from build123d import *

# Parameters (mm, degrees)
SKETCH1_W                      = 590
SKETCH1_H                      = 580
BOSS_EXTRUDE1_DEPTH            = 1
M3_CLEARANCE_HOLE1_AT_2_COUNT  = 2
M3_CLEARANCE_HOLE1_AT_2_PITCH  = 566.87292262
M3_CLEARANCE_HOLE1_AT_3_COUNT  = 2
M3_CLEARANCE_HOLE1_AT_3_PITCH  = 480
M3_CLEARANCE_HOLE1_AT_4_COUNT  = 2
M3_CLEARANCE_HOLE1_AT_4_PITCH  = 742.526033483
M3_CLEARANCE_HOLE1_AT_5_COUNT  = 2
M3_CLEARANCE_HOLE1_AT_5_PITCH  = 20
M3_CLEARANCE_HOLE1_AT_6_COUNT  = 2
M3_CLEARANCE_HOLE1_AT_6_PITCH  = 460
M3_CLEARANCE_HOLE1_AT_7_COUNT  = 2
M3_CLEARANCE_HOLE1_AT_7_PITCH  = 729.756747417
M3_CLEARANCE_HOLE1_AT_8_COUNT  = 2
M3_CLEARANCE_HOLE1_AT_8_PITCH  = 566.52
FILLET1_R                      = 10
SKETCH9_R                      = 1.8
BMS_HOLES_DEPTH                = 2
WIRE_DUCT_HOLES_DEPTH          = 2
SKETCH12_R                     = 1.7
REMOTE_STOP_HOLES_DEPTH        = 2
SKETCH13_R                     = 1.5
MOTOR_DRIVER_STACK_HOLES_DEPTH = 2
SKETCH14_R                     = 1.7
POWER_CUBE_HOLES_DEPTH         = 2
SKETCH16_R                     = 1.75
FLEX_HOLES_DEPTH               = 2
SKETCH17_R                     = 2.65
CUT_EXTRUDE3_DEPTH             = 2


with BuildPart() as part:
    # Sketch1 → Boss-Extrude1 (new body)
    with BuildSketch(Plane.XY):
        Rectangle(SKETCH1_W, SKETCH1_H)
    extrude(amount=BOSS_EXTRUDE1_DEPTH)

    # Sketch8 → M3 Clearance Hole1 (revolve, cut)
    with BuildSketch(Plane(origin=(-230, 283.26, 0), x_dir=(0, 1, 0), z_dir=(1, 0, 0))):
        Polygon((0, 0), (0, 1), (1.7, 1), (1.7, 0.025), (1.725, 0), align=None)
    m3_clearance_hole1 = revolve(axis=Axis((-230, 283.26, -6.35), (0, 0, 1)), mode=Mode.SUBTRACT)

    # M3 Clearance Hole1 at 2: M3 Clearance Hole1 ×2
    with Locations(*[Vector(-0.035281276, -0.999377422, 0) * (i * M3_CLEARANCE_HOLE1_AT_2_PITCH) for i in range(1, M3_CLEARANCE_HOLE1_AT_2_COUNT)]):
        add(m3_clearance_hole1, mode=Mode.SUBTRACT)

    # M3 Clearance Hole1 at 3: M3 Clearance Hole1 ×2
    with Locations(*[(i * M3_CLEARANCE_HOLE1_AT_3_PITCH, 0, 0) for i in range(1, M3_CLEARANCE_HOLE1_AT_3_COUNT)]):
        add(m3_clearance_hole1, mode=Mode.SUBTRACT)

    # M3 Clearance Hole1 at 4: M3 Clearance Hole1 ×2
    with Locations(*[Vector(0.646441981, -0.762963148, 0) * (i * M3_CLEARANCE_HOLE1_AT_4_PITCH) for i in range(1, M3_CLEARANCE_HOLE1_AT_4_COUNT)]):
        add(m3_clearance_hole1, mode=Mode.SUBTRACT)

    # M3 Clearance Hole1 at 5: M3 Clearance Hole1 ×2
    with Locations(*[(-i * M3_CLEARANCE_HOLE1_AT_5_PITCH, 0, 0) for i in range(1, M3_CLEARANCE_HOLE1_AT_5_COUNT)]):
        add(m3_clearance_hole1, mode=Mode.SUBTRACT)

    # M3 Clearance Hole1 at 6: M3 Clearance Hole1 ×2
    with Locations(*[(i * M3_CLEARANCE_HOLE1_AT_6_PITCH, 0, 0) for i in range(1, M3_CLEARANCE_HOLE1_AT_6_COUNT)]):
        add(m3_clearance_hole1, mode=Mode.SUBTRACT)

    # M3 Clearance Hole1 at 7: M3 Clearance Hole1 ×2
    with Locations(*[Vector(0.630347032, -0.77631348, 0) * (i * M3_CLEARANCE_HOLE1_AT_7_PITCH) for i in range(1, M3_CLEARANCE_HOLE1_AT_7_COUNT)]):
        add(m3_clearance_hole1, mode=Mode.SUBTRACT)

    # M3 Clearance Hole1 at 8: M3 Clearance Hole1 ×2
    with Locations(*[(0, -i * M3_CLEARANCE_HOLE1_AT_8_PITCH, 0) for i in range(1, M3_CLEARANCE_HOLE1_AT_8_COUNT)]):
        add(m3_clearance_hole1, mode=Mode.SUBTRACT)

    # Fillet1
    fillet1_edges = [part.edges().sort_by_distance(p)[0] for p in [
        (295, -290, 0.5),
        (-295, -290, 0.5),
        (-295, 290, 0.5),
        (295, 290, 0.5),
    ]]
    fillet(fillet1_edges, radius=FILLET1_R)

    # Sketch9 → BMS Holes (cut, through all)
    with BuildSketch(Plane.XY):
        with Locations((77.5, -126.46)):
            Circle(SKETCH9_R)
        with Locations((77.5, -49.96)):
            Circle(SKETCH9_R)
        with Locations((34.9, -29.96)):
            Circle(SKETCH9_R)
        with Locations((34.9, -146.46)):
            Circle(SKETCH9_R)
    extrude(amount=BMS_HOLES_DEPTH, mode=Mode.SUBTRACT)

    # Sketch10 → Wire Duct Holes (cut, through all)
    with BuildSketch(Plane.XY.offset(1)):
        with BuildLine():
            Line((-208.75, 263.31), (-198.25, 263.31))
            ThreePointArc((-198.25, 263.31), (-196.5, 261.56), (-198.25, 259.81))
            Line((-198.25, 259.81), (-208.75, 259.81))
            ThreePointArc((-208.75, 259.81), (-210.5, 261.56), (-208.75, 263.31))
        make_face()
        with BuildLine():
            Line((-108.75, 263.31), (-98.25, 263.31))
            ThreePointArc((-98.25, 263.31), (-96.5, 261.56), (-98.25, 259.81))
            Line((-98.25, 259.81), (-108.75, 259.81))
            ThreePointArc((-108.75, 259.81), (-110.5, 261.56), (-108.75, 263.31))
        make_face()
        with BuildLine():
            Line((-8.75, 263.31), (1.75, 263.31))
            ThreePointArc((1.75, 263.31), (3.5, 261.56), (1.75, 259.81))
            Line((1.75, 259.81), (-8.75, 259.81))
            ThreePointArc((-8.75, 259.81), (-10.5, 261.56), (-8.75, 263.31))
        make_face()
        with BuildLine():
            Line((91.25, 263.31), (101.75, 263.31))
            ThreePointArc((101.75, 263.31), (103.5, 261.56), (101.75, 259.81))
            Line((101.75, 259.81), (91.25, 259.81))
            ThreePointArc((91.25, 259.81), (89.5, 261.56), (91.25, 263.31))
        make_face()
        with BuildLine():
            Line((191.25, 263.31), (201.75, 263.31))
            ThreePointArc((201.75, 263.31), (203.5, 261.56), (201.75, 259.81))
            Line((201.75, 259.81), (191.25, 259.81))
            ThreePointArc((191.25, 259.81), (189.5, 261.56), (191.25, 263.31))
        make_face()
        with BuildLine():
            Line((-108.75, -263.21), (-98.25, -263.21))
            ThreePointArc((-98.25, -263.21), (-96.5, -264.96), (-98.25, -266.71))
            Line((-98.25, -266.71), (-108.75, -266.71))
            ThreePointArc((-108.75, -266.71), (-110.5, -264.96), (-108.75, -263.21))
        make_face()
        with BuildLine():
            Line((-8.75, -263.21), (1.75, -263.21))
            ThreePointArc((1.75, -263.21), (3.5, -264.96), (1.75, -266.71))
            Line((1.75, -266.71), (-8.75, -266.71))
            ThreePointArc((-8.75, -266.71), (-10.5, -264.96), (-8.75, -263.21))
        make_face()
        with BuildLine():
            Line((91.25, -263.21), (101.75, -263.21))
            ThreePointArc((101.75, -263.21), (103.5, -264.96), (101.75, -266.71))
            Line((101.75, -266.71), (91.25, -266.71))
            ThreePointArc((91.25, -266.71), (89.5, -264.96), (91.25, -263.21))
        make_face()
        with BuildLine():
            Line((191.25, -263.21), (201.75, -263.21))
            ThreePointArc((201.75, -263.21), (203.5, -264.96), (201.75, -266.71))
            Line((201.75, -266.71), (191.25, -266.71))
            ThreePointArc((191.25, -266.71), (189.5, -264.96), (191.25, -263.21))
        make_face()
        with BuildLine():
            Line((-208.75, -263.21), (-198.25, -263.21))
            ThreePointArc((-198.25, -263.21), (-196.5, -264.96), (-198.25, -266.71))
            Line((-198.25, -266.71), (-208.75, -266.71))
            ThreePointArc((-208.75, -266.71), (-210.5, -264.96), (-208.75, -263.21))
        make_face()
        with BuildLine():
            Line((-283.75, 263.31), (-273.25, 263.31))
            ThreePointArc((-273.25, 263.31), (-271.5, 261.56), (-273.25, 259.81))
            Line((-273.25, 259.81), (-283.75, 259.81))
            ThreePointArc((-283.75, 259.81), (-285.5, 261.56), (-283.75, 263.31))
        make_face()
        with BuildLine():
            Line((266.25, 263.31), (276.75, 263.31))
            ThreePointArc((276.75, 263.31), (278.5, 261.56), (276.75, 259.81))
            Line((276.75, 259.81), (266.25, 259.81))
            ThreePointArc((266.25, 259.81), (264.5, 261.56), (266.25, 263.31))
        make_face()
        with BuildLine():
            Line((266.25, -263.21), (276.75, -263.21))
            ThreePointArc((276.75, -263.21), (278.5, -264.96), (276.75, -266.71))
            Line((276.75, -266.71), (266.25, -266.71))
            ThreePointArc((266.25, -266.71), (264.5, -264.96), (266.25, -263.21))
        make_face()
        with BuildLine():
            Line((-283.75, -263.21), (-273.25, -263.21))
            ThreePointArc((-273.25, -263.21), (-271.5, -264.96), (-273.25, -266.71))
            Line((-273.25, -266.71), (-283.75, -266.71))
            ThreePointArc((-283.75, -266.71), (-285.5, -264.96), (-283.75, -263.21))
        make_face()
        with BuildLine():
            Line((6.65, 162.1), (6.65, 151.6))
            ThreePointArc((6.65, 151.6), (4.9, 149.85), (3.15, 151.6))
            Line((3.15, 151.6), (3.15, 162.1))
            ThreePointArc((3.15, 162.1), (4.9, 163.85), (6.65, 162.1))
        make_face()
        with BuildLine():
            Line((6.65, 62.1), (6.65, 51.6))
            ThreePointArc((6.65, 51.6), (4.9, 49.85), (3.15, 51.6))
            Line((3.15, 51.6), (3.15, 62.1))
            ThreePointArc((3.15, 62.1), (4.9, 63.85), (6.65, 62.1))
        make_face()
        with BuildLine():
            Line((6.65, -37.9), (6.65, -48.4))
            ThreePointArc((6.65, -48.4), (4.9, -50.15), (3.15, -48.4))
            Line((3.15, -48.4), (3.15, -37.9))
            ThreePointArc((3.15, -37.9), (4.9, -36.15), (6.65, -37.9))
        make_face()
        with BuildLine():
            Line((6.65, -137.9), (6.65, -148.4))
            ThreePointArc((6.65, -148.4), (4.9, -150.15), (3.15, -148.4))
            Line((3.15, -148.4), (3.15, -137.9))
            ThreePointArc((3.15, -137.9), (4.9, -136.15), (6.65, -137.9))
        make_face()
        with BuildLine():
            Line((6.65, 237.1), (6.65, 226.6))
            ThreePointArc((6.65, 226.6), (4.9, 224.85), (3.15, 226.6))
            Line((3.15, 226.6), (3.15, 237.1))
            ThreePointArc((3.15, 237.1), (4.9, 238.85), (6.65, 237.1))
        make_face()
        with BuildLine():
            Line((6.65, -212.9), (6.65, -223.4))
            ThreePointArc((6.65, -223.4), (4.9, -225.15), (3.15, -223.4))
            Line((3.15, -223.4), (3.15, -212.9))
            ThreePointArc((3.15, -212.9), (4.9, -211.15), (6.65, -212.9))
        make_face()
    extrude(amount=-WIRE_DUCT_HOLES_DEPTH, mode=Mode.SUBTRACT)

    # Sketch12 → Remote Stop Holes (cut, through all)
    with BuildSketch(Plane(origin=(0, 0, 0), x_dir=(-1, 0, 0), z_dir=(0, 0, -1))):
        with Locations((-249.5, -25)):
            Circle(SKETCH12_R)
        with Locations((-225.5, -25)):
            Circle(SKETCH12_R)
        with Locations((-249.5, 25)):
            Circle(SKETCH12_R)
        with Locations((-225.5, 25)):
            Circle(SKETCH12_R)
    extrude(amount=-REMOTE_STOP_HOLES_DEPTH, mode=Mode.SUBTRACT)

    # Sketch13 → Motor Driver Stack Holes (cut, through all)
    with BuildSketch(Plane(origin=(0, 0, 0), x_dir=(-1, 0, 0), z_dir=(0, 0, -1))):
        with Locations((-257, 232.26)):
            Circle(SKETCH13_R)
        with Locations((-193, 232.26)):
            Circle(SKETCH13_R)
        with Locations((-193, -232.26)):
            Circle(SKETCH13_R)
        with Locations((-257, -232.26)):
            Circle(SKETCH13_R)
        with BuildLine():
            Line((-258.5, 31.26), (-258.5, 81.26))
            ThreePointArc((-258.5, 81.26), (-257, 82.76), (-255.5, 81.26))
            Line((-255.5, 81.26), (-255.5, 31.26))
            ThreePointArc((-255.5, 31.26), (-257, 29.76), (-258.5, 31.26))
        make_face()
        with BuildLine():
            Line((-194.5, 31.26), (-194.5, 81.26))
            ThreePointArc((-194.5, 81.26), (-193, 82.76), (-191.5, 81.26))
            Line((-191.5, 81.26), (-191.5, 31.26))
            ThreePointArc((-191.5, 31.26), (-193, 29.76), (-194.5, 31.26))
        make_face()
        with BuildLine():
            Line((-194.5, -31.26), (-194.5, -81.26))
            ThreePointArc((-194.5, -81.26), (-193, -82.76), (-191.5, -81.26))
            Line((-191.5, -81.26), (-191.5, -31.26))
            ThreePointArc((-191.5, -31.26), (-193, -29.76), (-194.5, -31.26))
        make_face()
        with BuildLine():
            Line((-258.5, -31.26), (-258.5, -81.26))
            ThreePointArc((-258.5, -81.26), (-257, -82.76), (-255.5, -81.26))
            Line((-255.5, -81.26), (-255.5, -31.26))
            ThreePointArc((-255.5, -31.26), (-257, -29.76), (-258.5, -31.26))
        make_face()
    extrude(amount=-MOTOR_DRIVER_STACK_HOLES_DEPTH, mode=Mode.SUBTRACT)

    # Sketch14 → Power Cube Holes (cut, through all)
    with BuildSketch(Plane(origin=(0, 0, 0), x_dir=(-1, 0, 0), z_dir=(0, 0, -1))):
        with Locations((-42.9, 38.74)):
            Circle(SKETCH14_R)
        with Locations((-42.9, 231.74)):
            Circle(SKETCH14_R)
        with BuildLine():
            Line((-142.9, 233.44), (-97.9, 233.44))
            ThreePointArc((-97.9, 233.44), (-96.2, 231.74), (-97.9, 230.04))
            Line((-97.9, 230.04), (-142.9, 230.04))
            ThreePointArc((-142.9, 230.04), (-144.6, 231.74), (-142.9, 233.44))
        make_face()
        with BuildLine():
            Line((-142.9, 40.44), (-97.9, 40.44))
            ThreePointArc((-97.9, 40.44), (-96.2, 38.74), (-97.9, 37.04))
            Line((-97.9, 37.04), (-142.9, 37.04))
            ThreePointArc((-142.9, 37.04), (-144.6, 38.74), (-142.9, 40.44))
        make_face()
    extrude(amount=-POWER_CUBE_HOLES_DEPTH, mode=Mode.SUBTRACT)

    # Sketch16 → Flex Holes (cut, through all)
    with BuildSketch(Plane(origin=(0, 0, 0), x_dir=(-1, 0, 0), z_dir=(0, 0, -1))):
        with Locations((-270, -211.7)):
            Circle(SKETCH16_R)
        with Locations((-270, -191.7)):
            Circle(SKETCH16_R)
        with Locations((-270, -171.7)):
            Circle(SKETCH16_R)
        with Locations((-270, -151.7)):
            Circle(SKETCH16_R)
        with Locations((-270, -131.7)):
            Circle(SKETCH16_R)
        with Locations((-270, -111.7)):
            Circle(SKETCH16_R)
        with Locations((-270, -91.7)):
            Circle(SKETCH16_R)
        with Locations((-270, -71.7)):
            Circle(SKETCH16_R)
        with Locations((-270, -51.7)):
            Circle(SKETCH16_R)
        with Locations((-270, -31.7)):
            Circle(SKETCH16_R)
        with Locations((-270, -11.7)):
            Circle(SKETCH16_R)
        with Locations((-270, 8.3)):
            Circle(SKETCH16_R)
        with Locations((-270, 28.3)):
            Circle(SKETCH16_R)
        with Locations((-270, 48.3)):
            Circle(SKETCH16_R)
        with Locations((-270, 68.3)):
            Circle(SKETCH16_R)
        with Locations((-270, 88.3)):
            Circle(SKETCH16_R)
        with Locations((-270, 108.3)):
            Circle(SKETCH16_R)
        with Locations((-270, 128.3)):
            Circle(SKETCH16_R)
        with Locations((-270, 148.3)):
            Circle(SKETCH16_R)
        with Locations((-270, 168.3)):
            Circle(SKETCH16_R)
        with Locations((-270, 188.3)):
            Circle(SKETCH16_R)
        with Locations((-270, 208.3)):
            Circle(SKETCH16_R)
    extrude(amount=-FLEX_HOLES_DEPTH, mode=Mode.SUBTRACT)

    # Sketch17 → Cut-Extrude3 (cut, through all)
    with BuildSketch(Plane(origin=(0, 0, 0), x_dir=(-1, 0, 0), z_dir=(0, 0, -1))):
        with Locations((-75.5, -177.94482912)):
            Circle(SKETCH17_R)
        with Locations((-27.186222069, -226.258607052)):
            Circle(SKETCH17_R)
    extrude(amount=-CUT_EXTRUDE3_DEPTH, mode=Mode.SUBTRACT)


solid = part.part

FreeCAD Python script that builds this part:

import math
import FreeCAD as App
import Part
import Sketcher
from FreeCAD import Vector
Q = App.Units.Quantity


def edges_at(feature, points):
    """Names of the edges that pass closest to the given points."""
    edges = feature.Shape.Edges
    near = lambda p: min(range(len(edges)), key=lambda i: edges[i].distToShape(Part.Vertex(*p))[0])
    return sorted({f"Edge{near(p) + 1}" for p in points})

doc = App.newDocument("Part")
params = doc.addObject("Spreadsheet::Sheet", "Params")
for row, (alias, value) in enumerate([
    ("sketch1_width", "590 mm"),
    ("sketch1_height", "580 mm"),
    ("pad1_length", "1 mm"),
    ("sketch2_height", "1 mm"),
    ("sketch2_width", "1.7 mm"),
    ("groove_angle", "360 deg"),
    ("linearpattern_pitch", "566.872923 mm"),
    ("linearpattern2_pitch", "480 mm"),
    ("linearpattern3_pitch", "742.526033 mm"),
    ("linearpattern4_pitch", "20 mm"),
    ("linearpattern5_pitch", "460 mm"),
    ("linearpattern6_pitch", "729.756747 mm"),
    ("linearpattern7_pitch", "566.52 mm"),
    ("fillet_radius", "10 mm"),
    ("sketch3_diameter", "3.6 mm"),
    ("sketch4_radius", "1.75 mm"),
    ("sketch4_width", "10.5 mm"),
    ("sketch5_diameter", "3.4 mm"),
    ("sketch6_diameter", "3 mm"),
    ("sketch6_height", "50 mm"),
    ("sketch7_diameter", "3.4 mm"),
    ("sketch7_width", "45 mm"),
    ("sketch8_diameter", "3.5 mm"),
    ("sketch9_diameter", "5.3 mm"),
], start=1):
    params.set(f"A{row}", alias)
    params.set(f"B{row}", "=" + value)
    params.setAlias(f"B{row}", alias)

body = doc.addObject("PartDesign::Body", "Body")

sketch1 = body.newObject("Sketcher::SketchObject", "Sketch")
sketch1.AttachmentSupport = (doc.getObject("XY_Plane"), [""])
sketch1.MapMode = "FlatFace"
sketch1.addGeometry([
    Part.LineSegment(Vector(-295, 290, 0), Vector(-295, -290, 0)),
    Part.LineSegment(Vector(-295, -290, 0), Vector(295, -290, 0)),
    Part.LineSegment(Vector(295, -290, 0), Vector(295, 290, 0)),
    Part.LineSegment(Vector(295, 290, 0), Vector(-295, 290, 0)),
], False)
sketch1.addConstraint([
    Sketcher.Constraint("Coincident", 0, 2, 1, 1),
    Sketcher.Constraint("Coincident", 1, 2, 2, 1),
    Sketcher.Constraint("Coincident", 2, 2, 3, 1),
    Sketcher.Constraint("Coincident", 3, 2, 0, 1),
    Sketcher.Constraint("Vertical", 0),
    Sketcher.Constraint("Horizontal", 1),
    Sketcher.Constraint("Vertical", 2),
    Sketcher.Constraint("Horizontal", 3),
    Sketcher.Constraint("Symmetric", 0, 2, 2, 2, -1, 1),
    Sketcher.Constraint("DistanceX", 1, 1, 1, 2, 590.0),
    Sketcher.Constraint("DistanceY", 0, 2, 0, 1, 580.0),
])
sketch1.setExpression("Constraints[9]", "Params.sketch1_width")
sketch1.setExpression("Constraints[10]", "Params.sketch1_height")
pad1 = body.newObject("PartDesign::Pad", "Pad")
pad1.Profile = sketch1
pad1.setExpression("Length", "Params.pad1_length")

sketch2 = body.newObject("Sketcher::SketchObject", "Sketch001")
sketch2.AttachmentSupport = (doc.getObject("YZ_Plane"), [""])
sketch2.MapMode = "FlatFace"
sketch2.AttachmentOffset = App.Placement(Vector(0, 0, -230), App.Rotation())
sketch2.addGeometry([
    Part.LineSegment(Vector(283.26, 1, 0), Vector(283.26, 0, 0)),
    Part.LineSegment(Vector(283.26, 0, 0), Vector(284.985, 0, 0)),
    Part.LineSegment(Vector(284.985, 0, 0), Vector(284.96, 0.025, 0)),
    Part.LineSegment(Vector(284.96, 0.025, 0), Vector(284.96, 1, 0)),
    Part.LineSegment(Vector(284.96, 1, 0), Vector(283.26, 1, 0)),
], False)
sketch2.addGeometry(Part.LineSegment(Vector(283.26, 0, 0), Vector(283.26, 1, 0)), True)
sketch2.addConstraint([
    Sketcher.Constraint("Coincident", 0, 2, 1, 1),
    Sketcher.Constraint("Coincident", 1, 2, 2, 1),
    Sketcher.Constraint("Coincident", 2, 2, 3, 1),
    Sketcher.Constraint("Coincident", 3, 2, 4, 1),
    Sketcher.Constraint("Coincident", 4, 2, 0, 1),
    Sketcher.Constraint("Vertical", 0),
    Sketcher.Constraint("Horizontal", 1),
    Sketcher.Constraint("Vertical", 3),
    Sketcher.Constraint("Horizontal", 4),
    Sketcher.Constraint("Vertical", 5),
    Sketcher.Constraint("Coincident", 5, 1, 0, 2),
    Sketcher.Constraint("PointOnObject", 0, 2, -1),
    Sketcher.Constraint("Horizontal", 3, 2, 5, 2),
    Sketcher.Constraint("DistanceY", 0, 2, 0, 1, 1.0),
    Sketcher.Constraint("Angle", 2, Q("135 deg")),
    Sketcher.Constraint("DistanceX", 4, 2, 4, 1, 1.7),
    Sketcher.Constraint("DistanceX", 1, 1, 1, 2, 1.725),
    Sketcher.Constraint("DistanceX", -1, 1, 0, 2, 283.26),
])
sketch2.setExpression("Constraints[13]", "Params.sketch2_height")
sketch2.setExpression("Constraints[15]", "Params.sketch2_width")
groove = body.newObject("PartDesign::Groove", "Groove")
groove.Profile = sketch2
groove.ReferenceAxis = (sketch2, ["Axis0"])
groove.setExpression("Angle", "Params.groove_angle")
doc.recompute()

datumline = body.newObject("PartDesign::Line", "DatumLine")
datumline.Placement = App.Placement(Vector(0, 0, 0), App.Rotation(Vector(0, 0, 1), Vector(-0.035281276, -0.999377422, 0)))
linearpattern = body.newObject("PartDesign::LinearPattern", "LinearPattern")
linearpattern.Originals = [groove]
linearpattern.Direction = (datumline, [""])
linearpattern.Mode = "offset"
linearpattern.setExpression("Offset", "Params.linearpattern_pitch")
linearpattern.Occurrences = 2
body.Tip = linearpattern
doc.recompute()

linearpattern2 = body.newObject("PartDesign::LinearPattern", "LinearPattern001")
linearpattern2.Originals = [groove]
linearpattern2.Direction = (doc.getObject("X_Axis"), [""])
linearpattern2.Mode = "offset"
linearpattern2.setExpression("Offset", "Params.linearpattern2_pitch")
linearpattern2.Occurrences = 2
body.Tip = linearpattern2
doc.recompute()

datumline2 = body.newObject("PartDesign::Line", "DatumLine001")
datumline2.Placement = App.Placement(Vector(0, 0, 0), App.Rotation(Vector(0, 0, 1), Vector(0.646441981, -0.762963148, 0)))
linearpattern3 = body.newObject("PartDesign::LinearPattern", "LinearPattern002")
linearpattern3.Originals = [groove]
linearpattern3.Direction = (datumline2, [""])
linearpattern3.Mode = "offset"
linearpattern3.setExpression("Offset", "Params.linearpattern3_pitch")
linearpattern3.Occurrences = 2
body.Tip = linearpattern3
doc.recompute()

linearpattern4 = body.newObject("PartDesign::LinearPattern", "LinearPattern003")
linearpattern4.Originals = [groove]
linearpattern4.Direction = (doc.getObject("X_Axis"), [""])
linearpattern4.Mode = "offset"
linearpattern4.setExpression("Offset", "Params.linearpattern4_pitch")
linearpattern4.Occurrences = 2
linearpattern4.Reversed = True
body.Tip = linearpattern4
doc.recompute()

linearpattern5 = body.newObject("PartDesign::LinearPattern", "LinearPattern004")
linearpattern5.Originals = [groove]
linearpattern5.Direction = (doc.getObject("X_Axis"), [""])
linearpattern5.Mode = "offset"
linearpattern5.setExpression("Offset", "Params.linearpattern5_pitch")
linearpattern5.Occurrences = 2
body.Tip = linearpattern5
doc.recompute()

datumline3 = body.newObject("PartDesign::Line", "DatumLine002")
datumline3.Placement = App.Placement(Vector(0, 0, 0), App.Rotation(Vector(0, 0, 1), Vector(0.630347032, -0.77631348, 0)))
linearpattern6 = body.newObject("PartDesign::LinearPattern", "LinearPattern005")
linearpattern6.Originals = [groove]
linearpattern6.Direction = (datumline3, [""])
linearpattern6.Mode = "offset"
linearpattern6.setExpression("Offset", "Params.linearpattern6_pitch")
linearpattern6.Occurrences = 2
body.Tip = linearpattern6
doc.recompute()

linearpattern7 = body.newObject("PartDesign::LinearPattern", "LinearPattern006")
linearpattern7.Originals = [groove]
linearpattern7.Direction = (doc.getObject("Y_Axis"), [""])
linearpattern7.Mode = "offset"
linearpattern7.setExpression("Offset", "Params.linearpattern7_pitch")
linearpattern7.Occurrences = 2
linearpattern7.Reversed = True
body.Tip = linearpattern7
doc.recompute()

fillet = body.newObject("PartDesign::Fillet", "Fillet")
fillet.Base = (linearpattern7, edges_at(linearpattern7, [
    (295, -290, 0.5),
    (-295, -290, 0.5),
    (-295, 290, 0.5),
    (295, 290, 0.5),
]))
fillet.setExpression("Radius", "Params.fillet_radius")

sketch3 = body.newObject("Sketcher::SketchObject", "Sketch002")
sketch3.AttachmentSupport = (doc.getObject("XY_Plane"), [""])
sketch3.MapMode = "FlatFace"
sketch3.addGeometry([
    Part.Circle(Vector(77.5, -126.46, 0), Vector(0, 0, 1), 1.8),
    Part.Circle(Vector(77.5, -49.96, 0), Vector(0, 0, 1), 1.8),
    Part.Circle(Vector(34.9, -29.96, 0), Vector(0, 0, 1), 1.8),
    Part.Circle(Vector(34.9, -146.46, 0), Vector(0, 0, 1), 1.8),
], False)
sketch3.addConstraint([
    Sketcher.Constraint("Equal", 0, 1),
    Sketcher.Constraint("Equal", 1, 2),
    Sketcher.Constraint("Equal", 2, 3),
    Sketcher.Constraint("Vertical", 0, 3, 1, 3),
    Sketcher.Constraint("Vertical", 2, 3, 3, 3),
    Sketcher.Constraint("Diameter", 0, 3.6),
    Sketcher.Constraint("DistanceY", 1, 3, 2, 3, 20.0),
    Sketcher.Constraint("DistanceY", 3, 3, 0, 3, 20.0),
    Sketcher.Constraint("DistanceX", -1, 1, 0, 3, 77.5),
    Sketcher.Constraint("DistanceX", -1, 1, 2, 3, 34.9),
    Sketcher.Constraint("DistanceY", 0, 3, 1, 3, 76.5),
    Sketcher.Constraint("DistanceY", 0, 3, -1, 1, 126.46),
])
sketch3.setExpression("Constraints[5]", "Params.sketch3_diameter")
pocket1 = body.newObject("PartDesign::Pocket", "Pocket")
pocket1.Profile = sketch3
pocket1.Type = "ThroughAll"
pocket1.Reversed = True

sketch4 = body.newObject("Sketcher::SketchObject", "Sketch003")
sketch4.AttachmentSupport = (doc.getObject("XY_Plane"), [""])
sketch4.MapMode = "FlatFace"
sketch4.AttachmentOffset = App.Placement(Vector(0, 0, 1), App.Rotation())
sketch4.addGeometry([
    Part.LineSegment(Vector(-198.25, 263.31, 0), Vector(-208.75, 263.31, 0)),
    Part.ArcOfCircle(Part.Circle(Vector(-208.75, 261.56, 0), Vector(0, 0, 1), 1.75), math.radians(90), math.radians(270)),
    Part.LineSegment(Vector(-208.75, 259.81, 0), Vector(-198.25, 259.81, 0)),
    Part.ArcOfCircle(Part.Circle(Vector(-198.25, 261.56, 0), Vector(0, 0, 1), 1.75), math.radians(-90), math.radians(90)),
    Part.LineSegment(Vector(-98.25, 263.31, 0), Vector(-108.75, 263.31, 0)),
    Part.ArcOfCircle(Part.Circle(Vector(-108.75, 261.56, 0), Vector(0, 0, 1), 1.75), math.radians(90), math.radians(270)),
    Part.LineSegment(Vector(-108.75, 259.81, 0), Vector(-98.25, 259.81, 0)),
    Part.ArcOfCircle(Part.Circle(Vector(-98.25, 261.56, 0), Vector(0, 0, 1), 1.75), math.radians(-90), math.radians(90)),
    Part.LineSegment(Vector(1.75, 263.31, 0), Vector(-8.75, 263.31, 0)),
    Part.ArcOfCircle(Part.Circle(Vector(-8.75, 261.56, 0), Vector(0, 0, 1), 1.75), math.radians(90), math.radians(270)),
    Part.LineSegment(Vector(-8.75, 259.81, 0), Vector(1.75, 259.81, 0)),
    Part.ArcOfCircle(Part.Circle(Vector(1.75, 261.56, 0), Vector(0, 0, 1), 1.75), math.radians(-90), math.radians(90)),
    Part.LineSegment(Vector(101.75, 263.31, 0), Vector(91.25, 263.31, 0)),
    Part.ArcOfCircle(Part.Circle(Vector(91.25, 261.56, 0), Vector(0, 0, 1), 1.75), math.radians(90), math.radians(270)),
    Part.LineSegment(Vector(91.25, 259.81, 0), Vector(101.75, 259.81, 0)),
    Part.ArcOfCircle(Part.Circle(Vector(101.75, 261.56, 0), Vector(0, 0, 1), 1.75), math.radians(-90), math.radians(90)),
    Part.LineSegment(Vector(201.75, 263.31, 0), Vector(191.25, 263.31, 0)),
    Part.ArcOfCircle(Part.Circle(Vector(191.25, 261.56, 0), Vector(0, 0, 1), 1.75), math.radians(90), math.radians(270)),
    Part.LineSegment(Vector(191.25, 259.81, 0), Vector(201.75, 259.81, 0)),
    Part.ArcOfCircle(Part.Circle(Vector(201.75, 261.56, 0), Vector(0, 0, 1), 1.75), math.radians(-90), math.radians(90)),
    Part.LineSegment(Vector(-98.25, -263.21, 0), Vector(-108.75, -263.21, 0)),
    Part.ArcOfCircle(Part.Circle(Vector(-108.75, -264.96, 0), Vector(0, 0, 1), 1.75), math.radians(90), math.radians(270)),
    Part.LineSegment(Vector(-108.75, -266.71, 0), Vector(-98.25, -266.71, 0)),
    Part.ArcOfCircle(Part.Circle(Vector(-98.25, -264.96, 0), Vector(0, 0, 1), 1.75), math.radians(-90), math.radians(90)),
    Part.LineSegment(Vector(1.75, -263.21, 0), Vector(-8.75, -263.21, 0)),
    Part.ArcOfCircle(Part.Circle(Vector(-8.75, -264.96, 0), Vector(0, 0, 1), 1.75), math.radians(90), math.radians(270)),
    Part.LineSegment(Vector(-8.75, -266.71, 0), Vector(1.75, -266.71, 0)),
    Part.ArcOfCircle(Part.Circle(Vector(1.75, -264.96, 0), Vector(0, 0, 1), 1.75), math.radians(-90), math.radians(90)),
    Part.LineSegment(Vector(101.75, -263.21, 0), Vector(91.25, -263.21, 0)),
    Part.ArcOfCircle(Part.Circle(Vector(91.25, -264.96, 0), Vector(0, 0, 1), 1.75), math.radians(90), math.radians(270)),
    Part.LineSegment(Vector(91.25, -266.71, 0), Vector(101.75, -266.71, 0)),
    Part.ArcOfCircle(Part.Circle(Vector(101.75, -264.96, 0), Vector(0, 0, 1), 1.75), math.radians(-90), math.radians(90)),
    Part.LineSegment(Vector(201.75, -263.21, 0), Vector(191.25, -263.21, 0)),
    Part.ArcOfCircle(Part.Circle(Vector(191.25, -264.96, 0), Vector(0, 0, 1), 1.75), math.radians(90), math.radians(270)),
    Part.LineSegment(Vector(191.25, -266.71, 0), Vector(201.75, -266.71, 0)),
    Part.ArcOfCircle(Part.Circle(Vector(201.75, -264.96, 0), Vector(0, 0, 1), 1.75), math.radians(-90), math.radians(90)),
    Part.LineSegment(Vector(-198.25, -263.21, 0), Vector(-208.75, -263.21, 0)),
    Part.ArcOfCircle(Part.Circle(Vector(-208.75, -264.96, 0), Vector(0, 0, 1), 1.75), math.radians(90), math.radians(270)),
    Part.LineSegment(Vector(-208.75, -266.71, 0), Vector(-198.25, -266.71, 0)),
    Part.ArcOfCircle(Part.Circle(Vector(-198.25, -264.96, 0), Vector(0, 0, 1), 1.75), math.radians(-90), math.radians(90)),
    Part.LineSegment(Vector(-273.25, 263.31, 0), Vector(-283.75, 263.31, 0)),
    Part.ArcOfCircle(Part.Circle(Vector(-283.75, 261.56, 0), Vector(0, 0, 1), 1.75), math.radians(90), math.radians(270)),
    Part.LineSegment(Vector(-283.75, 259.81, 0), Vector(-273.25, 259.81, 0)),
    Part.ArcOfCircle(Part.Circle(Vector(-273.25, 261.56, 0), Vector(0, 0, 1), 1.75), math.radians(-90), math.radians(90)),
    Part.LineSegment(Vector(276.75, 263.31, 0), Vector(266.25, 263.31, 0)),
    Part.ArcOfCircle(Part.Circle(Vector(266.25, 261.56, 0), Vector(0, 0, 1), 1.75), math.radians(90), math.radians(270)),
    Part.LineSegment(Vector(266.25, 259.81, 0), Vector(276.75, 259.81, 0)),
    Part.ArcOfCircle(Part.Circle(Vector(276.75, 261.56, 0), Vector(0, 0, 1), 1.75), math.radians(-90), math.radians(90)),
    Part.LineSegment(Vector(276.75, -263.21, 0), Vector(266.25, -263.21, 0)),
    Part.ArcOfCircle(Part.Circle(Vector(266.25, -264.96, 0), Vector(0, 0, 1), 1.75), math.radians(90), math.radians(270)),
    Part.LineSegment(Vector(266.25, -266.71, 0), Vector(276.75, -266.71, 0)),
    Part.ArcOfCircle(Part.Circle(Vector(276.75, -264.96, 0), Vector(0, 0, 1), 1.75), math.radians(-90), math.radians(90)),
    Part.LineSegment(Vector(-273.25, -263.21, 0), Vector(-283.75, -263.21, 0)),
    Part.ArcOfCircle(Part.Circle(Vector(-283.75, -264.96, 0), Vector(0, 0, 1), 1.75), math.radians(90), math.radians(270)),
    Part.LineSegment(Vector(-283.75, -266.71, 0), Vector(-273.25, -266.71, 0)),
    Part.ArcOfCircle(Part.Circle(Vector(-273.25, -264.96, 0), Vector(0, 0, 1), 1.75), math.radians(-90), math.radians(90)),
    Part.LineSegment(Vector(6.65, 151.6, 0), Vector(6.65, 162.1, 0)),
    Part.ArcOfCircle(Part.Circle(Vector(4.9, 162.1, 0), Vector(0, 0, 1), 1.75), math.radians(0), math.radians(180)),
    Part.LineSegment(Vector(3.15, 162.1, 0), Vector(3.15, 151.6, 0)),
    Part.ArcOfCircle(Part.Circle(Vector(4.9, 151.6, 0), Vector(0, 0, 1), 1.75), math.radians(180), math.radians(360)),
    Part.LineSegment(Vector(6.65, 51.6, 0), Vector(6.65, 62.1, 0)),
    Part.ArcOfCircle(Part.Circle(Vector(4.9, 62.1, 0), Vector(0, 0, 1), 1.75), math.radians(0), math.radians(180)),
    Part.LineSegment(Vector(3.15, 62.1, 0), Vector(3.15, 51.6, 0)),
    Part.ArcOfCircle(Part.Circle(Vector(4.9, 51.6, 0), Vector(0, 0, 1), 1.75), math.radians(180), math.radians(360)),
    Part.LineSegment(Vector(6.65, -48.4, 0), Vector(6.65, -37.9, 0)),
    Part.ArcOfCircle(Part.Circle(Vector(4.9, -37.9, 0), Vector(0, 0, 1), 1.75), math.radians(0), math.radians(180)),
    Part.LineSegment(Vector(3.15, -37.9, 0), Vector(3.15, -48.4, 0)),
    Part.ArcOfCircle(Part.Circle(Vector(4.9, -48.4, 0), Vector(0, 0, 1), 1.75), math.radians(180), math.radians(360)),
    Part.LineSegment(Vector(6.65, -148.4, 0), Vector(6.65, -137.9, 0)),
    Part.ArcOfCircle(Part.Circle(Vector(4.9, -137.9, 0), Vector(0, 0, 1), 1.75), math.radians(0), math.radians(180)),
    Part.LineSegment(Vector(3.15, -137.9, 0), Vector(3.15, -148.4, 0)),
    Part.ArcOfCircle(Part.Circle(Vector(4.9, -148.4, 0), Vector(0, 0, 1), 1.75), math.radians(180), math.radians(360)),
    Part.LineSegment(Vector(6.65, 226.6, 0), Vector(6.65, 237.1, 0)),
    Part.ArcOfCircle(Part.Circle(Vector(4.9, 237.1, 0), Vector(0, 0, 1), 1.75), math.radians(0), math.radians(180)),
    Part.LineSegment(Vector(3.15, 237.1, 0), Vector(3.15, 226.6, 0)),
    Part.ArcOfCircle(Part.Circle(Vector(4.9, 226.6, 0), Vector(0, 0, 1), 1.75), math.radians(180), math.radians(360)),
    Part.LineSegment(Vector(6.65, -223.4, 0), Vector(6.65, -212.9, 0)),
    Part.ArcOfCircle(Part.Circle(Vector(4.9, -212.9, 0), Vector(0, 0, 1), 1.75), math.radians(0), math.radians(180)),
    Part.LineSegment(Vector(3.15, -212.9, 0), Vector(3.15, -223.4, 0)),
    Part.ArcOfCircle(Part.Circle(Vector(4.9, -223.4, 0), Vector(0, 0, 1), 1.75), math.radians(180), math.radians(360)),
], False)
sketch4.addConstraint([
    Sketcher.Constraint("Tangent", 0, 2, 1, 1),
    Sketcher.Constraint("Tangent", 1, 2, 2, 1),
    Sketcher.Constraint("Tangent", 2, 2, 3, 1),
    Sketcher.Constraint("Tangent", 3, 2, 0, 1),
    Sketcher.Constraint("Tangent", 4, 2, 5, 1),
    Sketcher.Constraint("Tangent", 5, 2, 6, 1),
    Sketcher.Constraint("Tangent", 6, 2, 7, 1),
    Sketcher.Constraint("Tangent", 7, 2, 4, 1),
    Sketcher.Constraint("Tangent", 8, 2, 9, 1),
    Sketcher.Constraint("Tangent", 9, 2, 10, 1),
    Sketcher.Constraint("Tangent", 10, 2, 11, 1),
    Sketcher.Constraint("Tangent", 11, 2, 8, 1),
    Sketcher.Constraint("Tangent", 12, 2, 13, 1),
    Sketcher.Constraint("Tangent", 13, 2, 14, 1),
    Sketcher.Constraint("Tangent", 14, 2, 15, 1),
    Sketcher.Constraint("Tangent", 15, 2, 12, 1),
    Sketcher.Constraint("Tangent", 16, 2, 17, 1),
    Sketcher.Constraint("Tangent", 17, 2, 18, 1),
    Sketcher.Constraint("Tangent", 18, 2, 19, 1),
    Sketcher.Constraint("Tangent", 19, 2, 16, 1),
    Sketcher.Constraint("Tangent", 20, 2, 21, 1),
    Sketcher.Constraint("Tangent", 21, 2, 22, 1),
    Sketcher.Constraint("Tangent", 22, 2, 23, 1),
    Sketcher.Constraint("Tangent", 23, 2, 20, 1),
    Sketcher.Constraint("Tangent", 24, 2, 25, 1),
    Sketcher.Constraint("Tangent", 25, 2, 26, 1),
    Sketcher.Constraint("Tangent", 26, 2, 27, 1),
    Sketcher.Constraint("Tangent", 27, 2, 24, 1),
    Sketcher.Constraint("Tangent", 28, 2, 29, 1),
    Sketcher.Constraint("Tangent", 29, 2, 30, 1),
    Sketcher.Constraint("Tangent", 30, 2, 31, 1),
    Sketcher.Constraint("Tangent", 31, 2, 28, 1),
    Sketcher.Constraint("Tangent", 32, 2, 33, 1),
    Sketcher.Constraint("Tangent", 33, 2, 34, 1),
    Sketcher.Constraint("Tangent", 34, 2, 35, 1),
    Sketcher.Constraint("Tangent", 35, 2, 32, 1),
    Sketcher.Constraint("Tangent", 36, 2, 37, 1),
    Sketcher.Constraint("Tangent", 37, 2, 38, 1),
    Sketcher.Constraint("Tangent", 38, 2, 39, 1),
    Sketcher.Constraint("Tangent", 39, 2, 36, 1),
    Sketcher.Constraint("Tangent", 40, 2, 41, 1),
    Sketcher.Constraint("Tangent", 41, 2, 42, 1),
    Sketcher.Constraint("Tangent", 42, 2, 43, 1),
    Sketcher.Constraint("Tangent", 43, 2, 40, 1),
    Sketcher.Constraint("Tangent", 44, 2, 45, 1),
    Sketcher.Constraint("Tangent", 45, 2, 46, 1),
    Sketcher.Constraint("Tangent", 46, 2, 47, 1),
    Sketcher.Constraint("Tangent", 47, 2, 44, 1),
    Sketcher.Constraint("Tangent", 48, 2, 49, 1),
    Sketcher.Constraint("Tangent", 49, 2, 50, 1),
    Sketcher.Constraint("Tangent", 50, 2, 51, 1),
    Sketcher.Constraint("Tangent", 51, 2, 48, 1),
    Sketcher.Constraint("Tangent", 52, 2, 53, 1),
    Sketcher.Constraint("Tangent", 53, 2, 54, 1),
    Sketcher.Constraint("Tangent", 54, 2, 55, 1),
    Sketcher.Constraint("Tangent", 55, 2, 52, 1),
    Sketcher.Constraint("Tangent", 56, 2, 57, 1),
    Sketcher.Constraint("Tangent", 57, 2, 58, 1),
    Sketcher.Constraint("Tangent", 58, 2, 59, 1),
    Sketcher.Constraint("Tangent", 59, 2, 56, 1),
    Sketcher.Constraint("Tangent", 60, 2, 61, 1),
    Sketcher.Constraint("Tangent", 61, 2, 62, 1),
    Sketcher.Constraint("Tangent", 62, 2, 63, 1),
    Sketcher.Constraint("Tangent", 63, 2, 60, 1),
    Sketcher.Constraint("Tangent", 64, 2, 65, 1),
    Sketcher.Constraint("Tangent", 65, 2, 66, 1),
    Sketcher.Constraint("Tangent", 66, 2, 67, 1),
    Sketcher.Constraint("Tangent", 67, 2, 64, 1),
    Sketcher.Constraint("Tangent", 68, 2, 69, 1),
    Sketcher.Constraint("Tangent", 69, 2, 70, 1),
    Sketcher.Constraint("Tangent", 70, 2, 71, 1),
    Sketcher.Constraint("Tangent", 71, 2, 68, 1),
    Sketcher.Constraint("Tangent", 72, 2, 73, 1),
    Sketcher.Constraint("Tangent", 73, 2, 74, 1),
    Sketcher.Constraint("Tangent", 74, 2, 75, 1),
    Sketcher.Constraint("Tangent", 75, 2, 72, 1),
    Sketcher.Constraint("Tangent", 76, 2, 77, 1),
    Sketcher.Constraint("Tangent", 77, 2, 78, 1),
    Sketcher.Constraint("Tangent", 78, 2, 79, 1),
    Sketcher.Constraint("Tangent", 79, 2, 76, 1),
    Sketcher.Constraint("Horizontal", 0),
    Sketcher.Constraint("Horizontal", 2),
    Sketcher.Constraint("Horizontal", 4),
    Sketcher.Constraint("Horizontal", 6),
    Sketcher.Constraint("Horizontal", 8),
    Sketcher.Constraint("Horizontal", 10),
    Sketcher.Constraint("Horizontal", 12),
    Sketcher.Constraint("Horizontal", 14),
    Sketcher.Constraint("Horizontal", 16),
    Sketcher.Constraint("Horizontal", 18),
    Sketcher.Constraint("Horizontal", 20),
    Sketcher.Constraint("Horizontal", 22),
    Sketcher.Constraint("Horizontal", 24),
    Sketcher.Constraint("Horizontal", 26),
    Sketcher.Constraint("Horizontal", 28),
    Sketcher.Constraint("Horizontal", 30),
    Sketcher.Constraint("Horizontal", 32),
    Sketcher.Constraint("Horizontal", 34),
    Sketcher.Constraint("Horizontal", 36),
    Sketcher.Constraint("Horizontal", 38),
    Sketcher.Constraint("Horizontal", 40),
    Sketcher.Constraint("Horizontal", 42),
    Sketcher.Constraint("Horizontal", 44),
    Sketcher.Constraint("Horizontal", 46),
    Sketcher.Constraint("Horizontal", 48),
    Sketcher.Constraint("Horizontal", 50),
    Sketcher.Constraint("Horizontal", 52),
    Sketcher.Constraint("Horizontal", 54),
    Sketcher.Constraint("Vertical", 56),
    Sketcher.Constraint("Vertical", 58),
    Sketcher.Constraint("Vertical", 60),
    Sketcher.Constraint("Vertical", 62),
    Sketcher.Constraint("Vertical", 64),
    Sketcher.Constraint("Vertical", 66),
    Sketcher.Constraint("Vertical", 68),
    Sketcher.Constraint("Vertical", 70),
    Sketcher.Constraint("Vertical", 72),
    Sketcher.Constraint("Vertical", 74),
    Sketcher.Constraint("Vertical", 76),
    Sketcher.Constraint("Vertical", 78),
    Sketcher.Constraint("Equal", 3, 5),
    Sketcher.Constraint("Equal", 7, 9),
    Sketcher.Constraint("Equal", 11, 13),
    Sketcher.Constraint("Equal", 15, 17),
    Sketcher.Constraint("Equal", 19, 21),
    Sketcher.Constraint("Equal", 23, 25),
    Sketcher.Constraint("Equal", 27, 29),
    Sketcher.Constraint("Equal", 31, 33),
    Sketcher.Constraint("Equal", 35, 37),
    Sketcher.Constraint("Equal", 39, 41),
    Sketcher.Constraint("Equal", 43, 45),
    Sketcher.Constraint("Equal", 47, 49),
    Sketcher.Constraint("Equal", 51, 53),
    Sketcher.Constraint("Equal", 55, 57),
    Sketcher.Constraint("Equal", 59, 61),
    Sketcher.Constraint("Equal", 63, 65),
    Sketcher.Constraint("Equal", 67, 69),
    Sketcher.Constraint("Equal", 71, 73),
    Sketcher.Constraint("Equal", 75, 77),
    Sketcher.Constraint("Horizontal", 3, 3, 5, 3),
    Sketcher.Constraint("Horizontal", 7, 3, 9, 3),
    Sketcher.Constraint("Horizontal", 11, 3, 13, 3),
    Sketcher.Constraint("Horizontal", 15, 3, 17, 3),
    Sketcher.Constraint("Horizontal", 23, 3, 25, 3),
    Sketcher.Constraint("Horizontal", 27, 3, 29, 3),
    Sketcher.Constraint("Horizontal", 31, 3, 33, 3),
    Sketcher.Constraint("Horizontal", 35, 3, 37, 3),
    Sketcher.Constraint("Horizontal", 19, 3, 41, 3),
    Sketcher.Constraint("Horizontal", 43, 3, 45, 3),
    Sketcher.Constraint("Horizontal", 39, 3, 49, 3),
    Sketcher.Constraint("Horizontal", 51, 3, 53, 3),
    Sketcher.Constraint("Vertical", 5, 3, 21, 3),
    Sketcher.Constraint("Vertical", 7, 3, 23, 3),
    Sketcher.Constraint("Vertical", 9, 3, 25, 3),
    Sketcher.Constraint("Vertical", 11, 3, 27, 3),
    Sketcher.Constraint("Vertical", 13, 3, 29, 3),
    Sketcher.Constraint("Vertical", 15, 3, 31, 3),
    Sketcher.Constraint("Vertical", 17, 3, 33, 3),
    Sketcher.Constraint("Vertical", 19, 3, 35, 3),
    Sketcher.Constraint("Vertical", 1, 3, 37, 3),
    Sketcher.Constraint("Vertical", 3, 3, 39, 3),
    Sketcher.Constraint("Vertical", 45, 3, 49, 3),
    Sketcher.Constraint("Vertical", 47, 3, 51, 3),
    Sketcher.Constraint("Vertical", 41, 3, 53, 3),
    Sketcher.Constraint("Vertical", 43, 3, 55, 3),
    Sketcher.Constraint("Vertical", 59, 3, 61, 3),
    Sketcher.Constraint("Vertical", 63, 3, 65, 3),
    Sketcher.Constraint("Vertical", 67, 3, 69, 3),
    Sketcher.Constraint("Vertical", 71, 3, 73, 3),
    Sketcher.Constraint("Vertical", 75, 3, 77, 3),
    Sketcher.Constraint("Equal", 2, 4),
    Sketcher.Constraint("Equal", 6, 8),
    Sketcher.Constraint("Equal", 10, 12),
    Sketcher.Constraint("Equal", 14, 16),
    Sketcher.Constraint("Equal", 38, 40),
    Sketcher.Constraint("Equal", 42, 44),
    Sketcher.Constraint("Equal", 54, 56),
    Sketcher.Constraint("Equal", 58, 60),
    Sketcher.Constraint("Equal", 62, 64),
    Sketcher.Constraint("Equal", 66, 68),
    Sketcher.Constraint("Equal", 70, 72),
    Sketcher.Constraint("Equal", 74, 76),
    Sketcher.Constraint("Radius", 1, 1.75),
    Sketcher.Constraint("DistanceX", 0, 2, 0, 1, 10.5),
    Sketcher.Constraint("DistanceX", -1, 1, 57, 3, 4.9),
    Sketcher.Constraint("DistanceY", -1, 1, 57, 3, 162.1),
    Sketcher.Constraint("DistanceY", -1, 1, 61, 3, 62.1),
    Sketcher.Constraint("DistanceY", 65, 3, -1, 1, 37.9),
    Sketcher.Constraint("DistanceY", 69, 3, -1, 1, 137.9),
    Sketcher.Constraint("DistanceY", -1, 1, 73, 3, 237.1),
    Sketcher.Constraint("DistanceY", 77, 3, -1, 1, 212.9),
    Sketcher.Constraint("DistanceX", 1, 3, -1, 1, 208.75),
    Sketcher.Constraint("DistanceY", -1, 1, 1, 3, 261.56),
    Sketcher.Constraint("DistanceX", 5, 3, -1, 1, 108.75),
    Sketcher.Constraint("DistanceX", 9, 3, -1, 1, 8.75),
    Sketcher.Constraint("DistanceX", -1, 1, 13, 3, 91.25),
    Sketcher.Constraint("DistanceX", -1, 1, 17, 3, 191.25),
    Sketcher.Constraint("DistanceY", 21, 3, -1, 1, 264.96),
    Sketcher.Constraint("DistanceX", 41, 3, -1, 1, 283.75),
    Sketcher.Constraint("DistanceX", -1, 1, 45, 3, 266.25),
])
sketch4.setExpression("Constraints[182]", "Params.sketch4_radius")
sketch4.setExpression("Constraints[183]", "Params.sketch4_width")
pocket2 = body.newObject("PartDesign::Pocket", "Pocket001")
pocket2.Profile = sketch4
pocket2.Type = "ThroughAll"

sketch5 = body.newObject("Sketcher::SketchObject", "Sketch004")
sketch5.AttachmentSupport = (doc.getObject("XY_Plane"), [""])
sketch5.MapMode = "FlatFace"
sketch5.addGeometry([
    Part.Circle(Vector(249.5, -25, 0), Vector(0, 0, 1), 1.7),
    Part.Circle(Vector(225.5, -25, 0), Vector(0, 0, 1), 1.7),
    Part.Circle(Vector(249.5, 25, 0), Vector(0, 0, 1), 1.7),
    Part.Circle(Vector(225.5, 25, 0), Vector(0, 0, 1), 1.7),
], False)
sketch5.addConstraint([
    Sketcher.Constraint("Equal", 0, 1),
    Sketcher.Constraint("Equal", 1, 2),
    Sketcher.Constraint("Equal", 2, 3),
    Sketcher.Constraint("Symmetric", 0, 3, 2, 3, -1),
    Sketcher.Constraint("Symmetric", 1, 3, 3, 3, -1),
    Sketcher.Constraint("Horizontal", 0, 3, 1, 3),
    Sketcher.Constraint("Diameter", 0, 3.4),
    Sketcher.Constraint("DistanceY", 0, 3, -1, 1, 25.0),
    Sketcher.Constraint("DistanceX", 1, 3, 0, 3, 24.0),
    Sketcher.Constraint("DistanceX", -1, 1, 0, 3, 249.5),
])
sketch5.setExpression("Constraints[6]", "Params.sketch5_diameter")
pocket3 = body.newObject("PartDesign::Pocket", "Pocket002")
pocket3.Profile = sketch5
pocket3.Type = "ThroughAll"
pocket3.Reversed = True

sketch6 = body.newObject("Sketcher::SketchObject", "Sketch005")
sketch6.AttachmentSupport = (doc.getObject("XY_Plane"), [""])
sketch6.MapMode = "FlatFace"
sketch6.addGeometry([
    Part.Circle(Vector(257, 232.26, 0), Vector(0, 0, 1), 1.5),
    Part.Circle(Vector(193, 232.26, 0), Vector(0, 0, 1), 1.5),
    Part.Circle(Vector(193, -232.26, 0), Vector(0, 0, 1), 1.5),
    Part.Circle(Vector(257, -232.26, 0), Vector(0, 0, 1), 1.5),
    Part.LineSegment(Vector(258.5, 81.26, 0), Vector(258.5, 31.26, 0)),
    Part.ArcOfCircle(Part.Circle(Vector(257, 31.26, 0), Vector(0, 0, 1), 1.5), math.radians(180), math.radians(360)),
    Part.LineSegment(Vector(255.5, 31.26, 0), Vector(255.5, 81.26, 0)),
    Part.ArcOfCircle(Part.Circle(Vector(257, 81.26, 0), Vector(0, 0, 1), 1.5), math.radians(0), math.radians(180)),
    Part.LineSegment(Vector(194.5, 81.26, 0), Vector(194.5, 31.26, 0)),
    Part.ArcOfCircle(Part.Circle(Vector(193, 31.26, 0), Vector(0, 0, 1), 1.5), math.radians(180), math.radians(360)),
    Part.LineSegment(Vector(191.5, 31.26, 0), Vector(191.5, 81.26, 0)),
    Part.ArcOfCircle(Part.Circle(Vector(193, 81.26, 0), Vector(0, 0, 1), 1.5), math.radians(0), math.radians(180)),
    Part.LineSegment(Vector(194.5, -31.26, 0), Vector(194.5, -81.26, 0)),
    Part.ArcOfCircle(Part.Circle(Vector(193, -81.26, 0), Vector(0, 0, 1), 1.5), math.radians(180), math.radians(360)),
    Part.LineSegment(Vector(191.5, -81.26, 0), Vector(191.5, -31.26, 0)),
    Part.ArcOfCircle(Part.Circle(Vector(193, -31.26, 0), Vector(0, 0, 1), 1.5), math.radians(0), math.radians(180)),
    Part.LineSegment(Vector(258.5, -31.26, 0), Vector(258.5, -81.26, 0)),
    Part.ArcOfCircle(Part.Circle(Vector(257, -81.26, 0), Vector(0, 0, 1), 1.5), math.radians(180), math.radians(360)),
    Part.LineSegment(Vector(255.5, -81.26, 0), Vector(255.5, -31.26, 0)),
    Part.ArcOfCircle(Part.Circle(Vector(257, -31.26, 0), Vector(0, 0, 1), 1.5), math.radians(0), math.radians(180)),
], False)
sketch6.addConstraint([
    Sketcher.Constraint("Tangent", 4, 2, 5, 2),
    Sketcher.Constraint("Tangent", 5, 1, 6, 1),
    Sketcher.Constraint("Tangent", 6, 2, 7, 2),
    Sketcher.Constraint("Tangent", 7, 1, 4, 1),
    Sketcher.Constraint("Tangent", 8, 2, 9, 2),
    Sketcher.Constraint("Tangent", 9, 1, 10, 1),
    Sketcher.Constraint("Tangent", 10, 2, 11, 2),
    Sketcher.Constraint("Tangent", 11, 1, 8, 1),
    Sketcher.Constraint("Tangent", 12, 2, 13, 2),
    Sketcher.Constraint("Tangent", 13, 1, 14, 1),
    Sketcher.Constraint("Tangent", 14, 2, 15, 2),
    Sketcher.Constraint("Tangent", 15, 1, 12, 1),
    Sketcher.Constraint("Tangent", 16, 2, 17, 2),
    Sketcher.Constraint("Tangent", 17, 1, 18, 1),
    Sketcher.Constraint("Tangent", 18, 2, 19, 2),
    Sketcher.Constraint("Tangent", 19, 1, 16, 1),
    Sketcher.Constraint("Vertical", 4),
    Sketcher.Constraint("Vertical", 6),
    Sketcher.Constraint("Vertical", 8),
    Sketcher.Constraint("Vertical", 10),
    Sketcher.Constraint("Vertical", 12),
    Sketcher.Constraint("Vertical", 14),
    Sketcher.Constraint("Vertical", 16),
    Sketcher.Constraint("Vertical", 18),
    Sketcher.Constraint("Equal", 0, 1),
    Sketcher.Constraint("Equal", 1, 2),
    Sketcher.Constraint("Equal", 2, 3),
    Sketcher.Constraint("Equal", 3, 5),
    Sketcher.Constraint("Equal", 7, 9),
    Sketcher.Constraint("Equal", 11, 13),
    Sketcher.Constraint("Equal", 15, 17),
    Sketcher.Constraint("Symmetric", 1, 3, 2, 3, -1),
    Sketcher.Constraint("Symmetric", 0, 3, 3, 3, -1),
    Sketcher.Constraint("Symmetric", 11, 3, 13, 3, -1),
    Sketcher.Constraint("Symmetric", 7, 3, 17, 3, -1),
    Sketcher.Constraint("Horizontal", 0, 3, 1, 3),
    Sketcher.Constraint("Horizontal", 5, 3, 9, 3),
    Sketcher.Constraint("Horizontal", 7, 3, 11, 3),
    Sketcher.Constraint("Horizontal", 15, 3, 19, 3),
    Sketcher.Constraint("Vertical", 3, 3, 5, 3),
    Sketcher.Constraint("Vertical", 2, 3, 9, 3),
    Sketcher.Constraint("Equal", 10, 12),
    Sketcher.Constraint("Diameter", 0, 3.0),
    Sketcher.Constraint("DistanceY", 4, 2, 4, 1, 50.0),
    Sketcher.Constraint("DistanceX", -1, 1, 0, 3, 257.0),
    Sketcher.Constraint("DistanceX", -1, 1, 1, 3, 193.0),
    Sketcher.Constraint("DistanceY", 5, 3, 0, 3, 201.0),
    Sketcher.Constraint("DistanceY", -1, 1, 0, 3, 232.26),
])
sketch6.setExpression("Constraints[42]", "Params.sketch6_diameter")
sketch6.setExpression("Constraints[43]", "Params.sketch6_height")
pocket4 = body.newObject("PartDesign::Pocket", "Pocket003")
pocket4.Profile = sketch6
pocket4.Type = "ThroughAll"
pocket4.Reversed = True

sketch7 = body.newObject("Sketcher::SketchObject", "Sketch006")
sketch7.AttachmentSupport = (doc.getObject("XY_Plane"), [""])
sketch7.MapMode = "FlatFace"
sketch7.addGeometry([
    Part.Circle(Vector(42.9, 38.74, 0), Vector(0, 0, 1), 1.7),
    Part.Circle(Vector(42.9, 231.74, 0), Vector(0, 0, 1), 1.7),
    Part.LineSegment(Vector(97.9, 233.44, 0), Vector(142.9, 233.44, 0)),
    Part.ArcOfCircle(Part.Circle(Vector(142.9, 231.74, 0), Vector(0, 0, 1), 1.7), math.radians(-90), math.radians(90)),
    Part.LineSegment(Vector(142.9, 230.04, 0), Vector(97.9, 230.04, 0)),
    Part.ArcOfCircle(Part.Circle(Vector(97.9, 231.74, 0), Vector(0, 0, 1), 1.7), math.radians(90), math.radians(270)),
    Part.LineSegment(Vector(97.9, 40.44, 0), Vector(142.9, 40.44, 0)),
    Part.ArcOfCircle(Part.Circle(Vector(142.9, 38.74, 0), Vector(0, 0, 1), 1.7), math.radians(-90), math.radians(90)),
    Part.LineSegment(Vector(142.9, 37.04, 0), Vector(97.9, 37.04, 0)),
    Part.ArcOfCircle(Part.Circle(Vector(97.9, 38.74, 0), Vector(0, 0, 1), 1.7), math.radians(90), math.radians(270)),
], False)
sketch7.addConstraint([
    Sketcher.Constraint("Tangent", 2, 2, 3, 2),
    Sketcher.Constraint("Tangent", 3, 1, 4, 1),
    Sketcher.Constraint("Tangent", 4, 2, 5, 2),
    Sketcher.Constraint("Tangent", 5, 1, 2, 1),
    Sketcher.Constraint("Tangent", 6, 2, 7, 2),
    Sketcher.Constraint("Tangent", 7, 1, 8, 1),
    Sketcher.Constraint("Tangent", 8, 2, 9, 2),
    Sketcher.Constraint("Tangent", 9, 1, 6, 1),
    Sketcher.Constraint("Horizontal", 2),
    Sketcher.Constraint("Horizontal", 4),
    Sketcher.Constraint("Horizontal", 6),
    Sketcher.Constraint("Horizontal", 8),
    Sketcher.Constraint("Equal", 0, 1),
    Sketcher.Constraint("Equal", 1, 3),
    Sketcher.Constraint("Equal", 5, 7),
    Sketcher.Constraint("Horizontal", 1, 3, 3, 3),
    Sketcher.Constraint("Horizontal", 0, 3, 7, 3),
    Sketcher.Constraint("Vertical", 0, 3, 1, 3),
    Sketcher.Constraint("Vertical", 3, 3, 7, 3),
    Sketcher.Constraint("Vertical", 5, 3, 9, 3),
    Sketcher.Constraint("Diameter", 0, 3.4),
    Sketcher.Constraint("DistanceX", 2, 1, 2, 2, 45.0),
    Sketcher.Constraint("DistanceY", 0, 3, 1, 3, 193.0),
    Sketcher.Constraint("DistanceX", 1, 3, 3, 3, 100.0),
    Sketcher.Constraint("DistanceX", -1, 1, 0, 3, 42.9),
    Sketcher.Constraint("DistanceY", -1, 1, 0, 3, 38.74),
])
sketch7.setExpression("Constraints[20]", "Params.sketch7_diameter")
sketch7.setExpression("Constraints[21]", "Params.sketch7_width")
pocket5 = body.newObject("PartDesign::Pocket", "Pocket004")
pocket5.Profile = sketch7
pocket5.Type = "ThroughAll"
pocket5.Reversed = True

sketch8 = body.newObject("Sketcher::SketchObject", "Sketch007")
sketch8.AttachmentSupport = (doc.getObject("XY_Plane"), [""])
sketch8.MapMode = "FlatFace"
sketch8.addGeometry([
    Part.Circle(Vector(270, -211.7, 0), Vector(0, 0, 1), 1.75),
    Part.Circle(Vector(270, -191.7, 0), Vector(0, 0, 1), 1.75),
    Part.Circle(Vector(270, -171.7, 0), Vector(0, 0, 1), 1.75),
    Part.Circle(Vector(270, -151.7, 0), Vector(0, 0, 1), 1.75),
    Part.Circle(Vector(270, -131.7, 0), Vector(0, 0, 1), 1.75),
    Part.Circle(Vector(270, -111.7, 0), Vector(0, 0, 1), 1.75),
    Part.Circle(Vector(270, -91.7, 0), Vector(0, 0, 1), 1.75),
    Part.Circle(Vector(270, -71.7, 0), Vector(0, 0, 1), 1.75),
    Part.Circle(Vector(270, -51.7, 0), Vector(0, 0, 1), 1.75),
    Part.Circle(Vector(270, -31.7, 0), Vector(0, 0, 1), 1.75),
    Part.Circle(Vector(270, -11.7, 0), Vector(0, 0, 1), 1.75),
    Part.Circle(Vector(270, 8.3, 0), Vector(0, 0, 1), 1.75),
    Part.Circle(Vector(270, 28.3, 0), Vector(0, 0, 1), 1.75),
    Part.Circle(Vector(270, 48.3, 0), Vector(0, 0, 1), 1.75),
    Part.Circle(Vector(270, 68.3, 0), Vector(0, 0, 1), 1.75),
    Part.Circle(Vector(270, 88.3, 0), Vector(0, 0, 1), 1.75),
    Part.Circle(Vector(270, 108.3, 0), Vector(0, 0, 1), 1.75),
    Part.Circle(Vector(270, 128.3, 0), Vector(0, 0, 1), 1.75),
    Part.Circle(Vector(270, 148.3, 0), Vector(0, 0, 1), 1.75),
    Part.Circle(Vector(270, 168.3, 0), Vector(0, 0, 1), 1.75),
    Part.Circle(Vector(270, 188.3, 0), Vector(0, 0, 1), 1.75),
    Part.Circle(Vector(270, 208.3, 0), Vector(0, 0, 1), 1.75),
], False)
sketch8.addConstraint([
    Sketcher.Constraint("Equal", 0, 1),
    Sketcher.Constraint("Equal", 1, 2),
    Sketcher.Constraint("Equal", 2, 3),
    Sketcher.Constraint("Equal", 3, 4),
    Sketcher.Constraint("Equal", 4, 5),
    Sketcher.Constraint("Equal", 5, 6),
    Sketcher.Constraint("Equal", 6, 7),
    Sketcher.Constraint("Equal", 7, 8),
    Sketcher.Constraint("Equal", 8, 9),
    Sketcher.Constraint("Equal", 9, 10),
    Sketcher.Constraint("Equal", 10, 11),
    Sketcher.Constraint("Equal", 11, 12),
    Sketcher.Constraint("Equal", 12, 13),
    Sketcher.Constraint("Equal", 13, 14),
    Sketcher.Constraint("Equal", 14, 15),
    Sketcher.Constraint("Equal", 15, 16),
    Sketcher.Constraint("Equal", 16, 17),
    Sketcher.Constraint("Equal", 17, 18),
    Sketcher.Constraint("Equal", 18, 19),
    Sketcher.Constraint("Equal", 19, 20),
    Sketcher.Constraint("Equal", 20, 21),
    Sketcher.Constraint("Vertical", 0, 3, 1, 3),
    Sketcher.Constraint("Vertical", 1, 3, 2, 3),
    Sketcher.Constraint("Vertical", 2, 3, 3, 3),
    Sketcher.Constraint("Vertical", 3, 3, 4, 3),
    Sketcher.Constraint("Vertical", 4, 3, 5, 3),
    Sketcher.Constraint("Vertical", 5, 3, 6, 3),
    Sketcher.Constraint("Vertical", 6, 3, 7, 3),
    Sketcher.Constraint("Vertical", 7, 3, 8, 3),
    Sketcher.Constraint("Vertical", 8, 3, 9, 3),
    Sketcher.Constraint("Vertical", 9, 3, 10, 3),
    Sketcher.Constraint("Vertical", 10, 3, 11, 3),
    Sketcher.Constraint("Vertical", 11, 3, 12, 3),
    Sketcher.Constraint("Vertical", 12, 3, 13, 3),
    Sketcher.Constraint("Vertical", 13, 3, 14, 3),
    Sketcher.Constraint("Vertical", 14, 3, 15, 3),
    Sketcher.Constraint("Vertical", 15, 3, 16, 3),
    Sketcher.Constraint("Vertical", 16, 3, 17, 3),
    Sketcher.Constraint("Vertical", 17, 3, 18, 3),
    Sketcher.Constraint("Vertical", 18, 3, 19, 3),
    Sketcher.Constraint("Vertical", 19, 3, 20, 3),
    Sketcher.Constraint("Vertical", 20, 3, 21, 3),
    Sketcher.Constraint("Diameter", 0, 3.5),
    Sketcher.Constraint("DistanceX", -1, 1, 0, 3, 270.0),
    Sketcher.Constraint("DistanceY", 0, 3, 1, 3, 20.0),
    Sketcher.Constraint("DistanceY", 1, 3, 2, 3, 20.0),
    Sketcher.Constraint("DistanceY", 2, 3, 3, 3, 20.0),
    Sketcher.Constraint("DistanceY", 3, 3, 4, 3, 20.0),
    Sketcher.Constraint("DistanceY", 4, 3, 5, 3, 20.0),
    Sketcher.Constraint("DistanceY", 5, 3, 6, 3, 20.0),
    Sketcher.Constraint("DistanceY", 6, 3, 7, 3, 20.0),
    Sketcher.Constraint("DistanceY", 7, 3, 8, 3, 20.0),
    Sketcher.Constraint("DistanceY", 8, 3, 9, 3, 20.0),
    Sketcher.Constraint("DistanceY", 9, 3, 10, 3, 20.0),
    Sketcher.Constraint("DistanceY", 10, 3, 11, 3, 20.0),
    Sketcher.Constraint("DistanceY", 11, 3, 12, 3, 20.0),
    Sketcher.Constraint("DistanceY", 12, 3, 13, 3, 20.0),
    Sketcher.Constraint("DistanceY", 13, 3, 14, 3, 20.0),
    Sketcher.Constraint("DistanceY", 14, 3, 15, 3, 20.0),
    Sketcher.Constraint("DistanceY", 15, 3, 16, 3, 20.0),
    Sketcher.Constraint("DistanceY", 16, 3, 17, 3, 20.0),
    Sketcher.Constraint("DistanceY", 17, 3, 18, 3, 20.0),
    Sketcher.Constraint("DistanceY", 18, 3, 19, 3, 20.0),
    Sketcher.Constraint("DistanceY", 19, 3, 20, 3, 20.0),
    Sketcher.Constraint("DistanceY", 20, 3, 21, 3, 20.0),
    Sketcher.Constraint("DistanceY", 0, 3, -1, 1, 211.7),
])
sketch8.setExpression("Constraints[42]", "Params.sketch8_diameter")
pocket6 = body.newObject("PartDesign::Pocket", "Pocket005")
pocket6.Profile = sketch8
pocket6.Type = "ThroughAll"
pocket6.Reversed = True

sketch9 = body.newObject("Sketcher::SketchObject", "Sketch008")
sketch9.AttachmentSupport = (doc.getObject("XY_Plane"), [""])
sketch9.MapMode = "FlatFace"
sketch9.addGeometry([
    Part.Circle(Vector(75.5, -177.944829, 0), Vector(0, 0, 1), 2.65),
    Part.Circle(Vector(27.186222, -226.258607, 0), Vector(0, 0, 1), 2.65),
], False)
sketch9.addConstraint([
    Sketcher.Constraint("Equal", 0, 1),
    Sketcher.Constraint("Diameter", 0, 5.3),
    Sketcher.Constraint("DistanceX", -1, 1, 0, 3, 75.5),
    Sketcher.Constraint("DistanceY", 0, 3, -1, 1, 177.944829),
    Sketcher.Constraint("DistanceX", -1, 1, 1, 3, 27.186222),
    Sketcher.Constraint("DistanceY", 1, 3, -1, 1, 226.258607),
])
sketch9.setExpression("Constraints[1]", "Params.sketch9_diameter")
pocket7 = body.newObject("PartDesign::Pocket", "Pocket006")
pocket7.Profile = sketch9
pocket7.Type = "ThroughAll"
pocket7.Reversed = True

doc.recompute()
